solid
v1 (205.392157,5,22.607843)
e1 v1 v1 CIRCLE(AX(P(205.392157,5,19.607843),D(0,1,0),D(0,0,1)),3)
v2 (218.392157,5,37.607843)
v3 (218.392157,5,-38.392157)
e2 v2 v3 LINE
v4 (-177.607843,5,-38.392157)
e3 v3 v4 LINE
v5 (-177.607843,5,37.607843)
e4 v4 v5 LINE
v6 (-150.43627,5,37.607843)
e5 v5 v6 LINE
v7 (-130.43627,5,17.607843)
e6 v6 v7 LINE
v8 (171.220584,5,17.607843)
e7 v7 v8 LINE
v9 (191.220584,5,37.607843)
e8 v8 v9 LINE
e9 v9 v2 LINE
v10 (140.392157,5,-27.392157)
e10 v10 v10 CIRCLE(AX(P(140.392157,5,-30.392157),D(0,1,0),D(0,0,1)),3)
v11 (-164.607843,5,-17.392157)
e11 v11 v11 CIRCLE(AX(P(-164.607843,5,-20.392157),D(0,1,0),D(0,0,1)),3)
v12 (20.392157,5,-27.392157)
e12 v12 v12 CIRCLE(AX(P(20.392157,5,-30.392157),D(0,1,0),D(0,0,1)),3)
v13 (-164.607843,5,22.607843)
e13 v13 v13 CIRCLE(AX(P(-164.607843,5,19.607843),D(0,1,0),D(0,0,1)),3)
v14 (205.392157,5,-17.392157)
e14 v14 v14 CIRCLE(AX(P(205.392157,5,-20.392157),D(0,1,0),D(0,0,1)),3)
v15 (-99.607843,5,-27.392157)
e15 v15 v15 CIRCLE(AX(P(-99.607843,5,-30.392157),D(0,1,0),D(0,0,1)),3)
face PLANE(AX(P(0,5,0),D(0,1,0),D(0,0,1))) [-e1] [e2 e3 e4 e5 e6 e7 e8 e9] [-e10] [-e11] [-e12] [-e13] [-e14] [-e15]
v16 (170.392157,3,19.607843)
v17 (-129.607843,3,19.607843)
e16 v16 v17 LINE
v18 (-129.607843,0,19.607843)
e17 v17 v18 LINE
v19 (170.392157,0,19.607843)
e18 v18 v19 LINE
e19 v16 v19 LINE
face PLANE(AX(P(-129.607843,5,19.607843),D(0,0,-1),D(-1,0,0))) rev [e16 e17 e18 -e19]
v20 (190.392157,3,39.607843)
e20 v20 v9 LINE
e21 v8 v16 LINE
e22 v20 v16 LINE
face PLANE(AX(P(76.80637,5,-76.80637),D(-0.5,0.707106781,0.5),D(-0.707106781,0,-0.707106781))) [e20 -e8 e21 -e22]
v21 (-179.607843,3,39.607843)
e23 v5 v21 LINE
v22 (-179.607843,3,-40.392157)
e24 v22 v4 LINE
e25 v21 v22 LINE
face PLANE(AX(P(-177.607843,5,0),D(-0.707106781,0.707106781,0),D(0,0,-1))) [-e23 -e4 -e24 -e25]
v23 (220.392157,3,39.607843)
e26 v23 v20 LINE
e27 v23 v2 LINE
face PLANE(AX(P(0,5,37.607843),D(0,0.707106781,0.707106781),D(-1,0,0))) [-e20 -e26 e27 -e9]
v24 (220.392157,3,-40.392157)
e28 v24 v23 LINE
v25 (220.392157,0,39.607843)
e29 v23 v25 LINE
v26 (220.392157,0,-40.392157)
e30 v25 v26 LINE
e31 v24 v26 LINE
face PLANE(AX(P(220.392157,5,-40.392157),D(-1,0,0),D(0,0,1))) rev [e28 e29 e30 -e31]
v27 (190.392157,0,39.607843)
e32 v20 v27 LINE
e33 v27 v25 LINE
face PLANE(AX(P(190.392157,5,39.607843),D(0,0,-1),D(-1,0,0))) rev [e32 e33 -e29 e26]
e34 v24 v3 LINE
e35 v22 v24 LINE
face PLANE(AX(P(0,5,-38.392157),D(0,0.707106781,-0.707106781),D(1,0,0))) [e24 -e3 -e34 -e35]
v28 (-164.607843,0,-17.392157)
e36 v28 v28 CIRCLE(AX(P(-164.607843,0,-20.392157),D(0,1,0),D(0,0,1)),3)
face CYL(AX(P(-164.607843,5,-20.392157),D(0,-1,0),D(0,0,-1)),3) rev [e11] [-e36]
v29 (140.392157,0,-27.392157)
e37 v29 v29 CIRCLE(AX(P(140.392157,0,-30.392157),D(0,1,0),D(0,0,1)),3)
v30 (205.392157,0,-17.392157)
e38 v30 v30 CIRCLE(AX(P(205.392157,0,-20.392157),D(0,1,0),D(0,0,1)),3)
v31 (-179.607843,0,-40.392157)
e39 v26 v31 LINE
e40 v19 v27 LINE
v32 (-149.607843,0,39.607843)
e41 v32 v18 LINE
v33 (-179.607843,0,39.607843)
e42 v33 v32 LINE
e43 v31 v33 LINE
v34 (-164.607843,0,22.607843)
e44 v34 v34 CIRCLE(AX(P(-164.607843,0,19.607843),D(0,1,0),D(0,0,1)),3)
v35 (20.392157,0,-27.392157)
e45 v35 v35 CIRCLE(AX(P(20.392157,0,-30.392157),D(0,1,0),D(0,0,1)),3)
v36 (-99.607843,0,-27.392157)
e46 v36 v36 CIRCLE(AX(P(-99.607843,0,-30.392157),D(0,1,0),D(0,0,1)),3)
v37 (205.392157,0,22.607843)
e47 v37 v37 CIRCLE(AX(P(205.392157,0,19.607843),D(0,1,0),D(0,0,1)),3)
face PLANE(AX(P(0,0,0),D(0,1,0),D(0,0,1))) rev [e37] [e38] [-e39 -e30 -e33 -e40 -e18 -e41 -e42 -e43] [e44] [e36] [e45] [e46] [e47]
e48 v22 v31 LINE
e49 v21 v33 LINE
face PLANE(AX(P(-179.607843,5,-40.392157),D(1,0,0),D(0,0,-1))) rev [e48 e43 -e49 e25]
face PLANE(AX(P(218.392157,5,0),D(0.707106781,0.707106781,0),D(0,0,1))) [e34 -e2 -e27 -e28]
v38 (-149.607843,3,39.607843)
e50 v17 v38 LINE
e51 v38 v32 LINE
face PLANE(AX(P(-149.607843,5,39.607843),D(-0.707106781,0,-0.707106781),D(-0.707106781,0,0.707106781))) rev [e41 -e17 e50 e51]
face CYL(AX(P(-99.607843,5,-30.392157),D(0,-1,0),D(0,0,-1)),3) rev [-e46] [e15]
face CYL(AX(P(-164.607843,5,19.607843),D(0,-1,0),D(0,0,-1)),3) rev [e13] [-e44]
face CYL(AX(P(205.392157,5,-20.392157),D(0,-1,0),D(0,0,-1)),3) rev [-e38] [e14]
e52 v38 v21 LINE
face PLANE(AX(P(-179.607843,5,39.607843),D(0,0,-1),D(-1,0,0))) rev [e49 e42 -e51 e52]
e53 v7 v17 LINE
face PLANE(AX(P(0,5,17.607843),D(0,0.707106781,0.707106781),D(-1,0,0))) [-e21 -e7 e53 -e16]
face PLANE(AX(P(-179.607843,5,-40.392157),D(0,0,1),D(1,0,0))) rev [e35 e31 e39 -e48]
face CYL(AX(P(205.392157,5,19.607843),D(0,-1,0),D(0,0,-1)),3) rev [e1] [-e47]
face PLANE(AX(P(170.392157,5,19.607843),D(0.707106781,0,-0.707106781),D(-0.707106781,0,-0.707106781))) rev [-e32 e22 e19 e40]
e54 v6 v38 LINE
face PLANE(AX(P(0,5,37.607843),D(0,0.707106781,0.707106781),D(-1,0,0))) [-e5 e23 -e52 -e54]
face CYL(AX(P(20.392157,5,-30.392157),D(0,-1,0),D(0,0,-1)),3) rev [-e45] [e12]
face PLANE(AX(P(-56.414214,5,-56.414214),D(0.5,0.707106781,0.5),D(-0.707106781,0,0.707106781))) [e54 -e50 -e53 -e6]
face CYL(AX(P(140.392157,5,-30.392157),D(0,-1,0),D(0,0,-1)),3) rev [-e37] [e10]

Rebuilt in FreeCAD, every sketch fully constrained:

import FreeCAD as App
import Part
import Sketcher
from FreeCAD import Vector
Q = App.Units.Quantity


def edges_at(feature, points):
    """Names of the edges that pass closest to the given points."""
    edges = feature.Shape.Edges
    near = lambda p: min(range(len(edges)), key=lambda i: edges[i].distToShape(Part.Vertex(*p))[0])
    return sorted({f"Edge{near(p) + 1}" for p in points})

doc = App.newDocument("Part")
body = doc.addObject("PartDesign::Body", "Body")

# Sketch on XZ plane
sketch1 = body.newObject("Sketcher::SketchObject", "Sketch")
sketch1.AttachmentSupport = (doc.getObject("XZ_Plane"), [""])
sketch1.MapMode = "FlatFace"
sketch1.addGeometry([
    Part.LineSegment(Vector(-149.6, 39.6, 0), Vector(-129.6, 19.6, 0)),  # 0
    Part.LineSegment(Vector(-129.6, 19.6, 0), Vector(170.4, 19.6, 0)),  # 1
    Part.LineSegment(Vector(170.4, 19.6, 0), Vector(190.4, 39.6, 0)),  # 2
    Part.LineSegment(Vector(190.4, 39.6, 0), Vector(220.4, 39.6, 0)),  # 3
    Part.LineSegment(Vector(220.4, 39.6, 0), Vector(220.4, -40.4, 0)),  # 4
    Part.LineSegment(Vector(220.4, -40.4, 0), Vector(-179.6, -40.4, 0)),  # 5
    Part.LineSegment(Vector(-179.6, -40.4, 0), Vector(-179.6, 39.6, 0)),  # 6
    Part.LineSegment(Vector(-179.6, 39.6, 0), Vector(-149.6, 39.6, 0)),  # 7
    Part.Circle(Vector(-164.6, 19.6, 0), Vector(0, 0, 1), 3),  # 8
    Part.Circle(Vector(205.4, 19.6, 0), Vector(0, 0, 1), 3),  # 9
    Part.Circle(Vector(-164.6, -20.4, 0), Vector(0, 0, 1), 3),  # 10
    Part.Circle(Vector(-99.6, -30.4, 0), Vector(0, 0, 1), 3),  # 11
    Part.Circle(Vector(20.4, -30.4, 0), Vector(0, 0, 1), 3),  # 12
    Part.Circle(Vector(205.4, -20.4, 0), Vector(0, 0, 1), 3),  # 13
    Part.Circle(Vector(140.4, -30.4, 0), Vector(0, 0, 1), 3),  # 14
], False)
sketch1.addConstraint([
    Sketcher.Constraint("Coincident", 0, 2, 1, 1),
    Sketcher.Constraint("Coincident", 1, 2, 2, 1),
    Sketcher.Constraint("Coincident", 2, 2, 3, 1),
    Sketcher.Constraint("Coincident", 3, 2, 4, 1),
    Sketcher.Constraint("Coincident", 4, 2, 5, 1),
    Sketcher.Constraint("Coincident", 5, 2, 6, 1),
    Sketcher.Constraint("Coincident", 6, 2, 7, 1),
    Sketcher.Constraint("Coincident", 7, 2, 0, 1),
    Sketcher.Constraint("Horizontal", 1),
    Sketcher.Constraint("Horizontal", 3),
    Sketcher.Constraint("Vertical", 4),
    Sketcher.Constraint("Horizontal", 5),
    Sketcher.Constraint("Vertical", 6),
    Sketcher.Constraint("Horizontal", 7),
    Sketcher.Constraint("Equal", 8, 9),
    Sketcher.Constraint("Equal", 9, 10),
    Sketcher.Constraint("Equal", 10, 11),
    Sketcher.Constraint("Equal", 11, 12),
    Sketcher.Constraint("Equal", 12, 13),
    Sketcher.Constraint("Equal", 13, 14),
    Sketcher.Constraint("Perpendicular", 0, 2),
    Sketcher.Constraint("Horizontal", 8, 3, 9, 3),
    Sketcher.Constraint("Horizontal", 11, 3, 12, 3),
    Sketcher.Constraint("Horizontal", 10, 3, 13, 3),
    Sketcher.Constraint("Horizontal", 12, 3, 14, 3),
    Sketcher.Constraint("Horizontal", 9, 3, 0, 2),
    Sketcher.Constraint("Horizontal", 3, 2, 6, 2),
    Sketcher.Constraint("Vertical", 8, 3, 10, 3),
    Sketcher.Constraint("Vertical", 9, 3, 13, 3),
    Sketcher.Constraint("Equal", 3, 7),
    Sketcher.Constraint("Equal", 0, 2),
    Sketcher.Constraint("Diameter", 8, Q("6 mm")),
    Sketcher.Constraint("DistanceX", 1, 1, 1, 2, Q("300 mm")),
    Sketcher.Constraint("DistanceX", 3, 1, 3, 2, Q("30 mm")),
    Sketcher.Constraint("DistanceX", 5, 2, 5, 1, Q("400 mm")),
    Sketcher.Constraint("DistanceY", 4, 2, 4, 1, Q("80 mm")),
    Sketcher.Constraint("DistanceX", 8, 3, 9, 3, Q("370 mm")),
    Sketcher.Constraint("DistanceY", 10, 3, 8, 3, Q("40 mm")),
    Sketcher.Constraint("DistanceX", 10, 3, 11, 3, Q("65 mm")),
    Sketcher.Constraint("DistanceY", 11, 3, 10, 3, Q("10 mm")),
    Sketcher.Constraint("DistanceX", 11, 3, 12, 3, Q("120 mm")),
    Sketcher.Constraint("DistanceX", 14, 3, 13, 3, Q("65 mm")),
    Sketcher.Constraint("DistanceX", 8, 3, 0, 2, Q("35 mm")),
    Sketcher.Constraint("DistanceX", 8, 3, -1, 1, Q("164.607843 mm")),
    Sketcher.Constraint("DistanceY", -1, 1, 8, 3, Q("19.607843 mm")),
])
pad1 = body.newObject("PartDesign::Pad", "Pad")
pad1.Profile = sketch1
pad1.Length = 5
pad1.Reversed = True
doc.recompute()

chamfer = body.newObject("PartDesign::Chamfer", "Chamfer")
chamfer.Base = (pad1, edges_at(pad1, [
    (-139.608, 5, 29.608),
    (20.392, 5, 19.608),
    (180.392, 5, 29.608),
    (205.392, 5, 39.608),
    (220.392, 5, -0.392),
    (20.392, 5, -40.392),
    (-179.608, 5, -0.392),
    (-164.608, 5, 39.608),
]))
chamfer.Size = 2

doc.recompute()
